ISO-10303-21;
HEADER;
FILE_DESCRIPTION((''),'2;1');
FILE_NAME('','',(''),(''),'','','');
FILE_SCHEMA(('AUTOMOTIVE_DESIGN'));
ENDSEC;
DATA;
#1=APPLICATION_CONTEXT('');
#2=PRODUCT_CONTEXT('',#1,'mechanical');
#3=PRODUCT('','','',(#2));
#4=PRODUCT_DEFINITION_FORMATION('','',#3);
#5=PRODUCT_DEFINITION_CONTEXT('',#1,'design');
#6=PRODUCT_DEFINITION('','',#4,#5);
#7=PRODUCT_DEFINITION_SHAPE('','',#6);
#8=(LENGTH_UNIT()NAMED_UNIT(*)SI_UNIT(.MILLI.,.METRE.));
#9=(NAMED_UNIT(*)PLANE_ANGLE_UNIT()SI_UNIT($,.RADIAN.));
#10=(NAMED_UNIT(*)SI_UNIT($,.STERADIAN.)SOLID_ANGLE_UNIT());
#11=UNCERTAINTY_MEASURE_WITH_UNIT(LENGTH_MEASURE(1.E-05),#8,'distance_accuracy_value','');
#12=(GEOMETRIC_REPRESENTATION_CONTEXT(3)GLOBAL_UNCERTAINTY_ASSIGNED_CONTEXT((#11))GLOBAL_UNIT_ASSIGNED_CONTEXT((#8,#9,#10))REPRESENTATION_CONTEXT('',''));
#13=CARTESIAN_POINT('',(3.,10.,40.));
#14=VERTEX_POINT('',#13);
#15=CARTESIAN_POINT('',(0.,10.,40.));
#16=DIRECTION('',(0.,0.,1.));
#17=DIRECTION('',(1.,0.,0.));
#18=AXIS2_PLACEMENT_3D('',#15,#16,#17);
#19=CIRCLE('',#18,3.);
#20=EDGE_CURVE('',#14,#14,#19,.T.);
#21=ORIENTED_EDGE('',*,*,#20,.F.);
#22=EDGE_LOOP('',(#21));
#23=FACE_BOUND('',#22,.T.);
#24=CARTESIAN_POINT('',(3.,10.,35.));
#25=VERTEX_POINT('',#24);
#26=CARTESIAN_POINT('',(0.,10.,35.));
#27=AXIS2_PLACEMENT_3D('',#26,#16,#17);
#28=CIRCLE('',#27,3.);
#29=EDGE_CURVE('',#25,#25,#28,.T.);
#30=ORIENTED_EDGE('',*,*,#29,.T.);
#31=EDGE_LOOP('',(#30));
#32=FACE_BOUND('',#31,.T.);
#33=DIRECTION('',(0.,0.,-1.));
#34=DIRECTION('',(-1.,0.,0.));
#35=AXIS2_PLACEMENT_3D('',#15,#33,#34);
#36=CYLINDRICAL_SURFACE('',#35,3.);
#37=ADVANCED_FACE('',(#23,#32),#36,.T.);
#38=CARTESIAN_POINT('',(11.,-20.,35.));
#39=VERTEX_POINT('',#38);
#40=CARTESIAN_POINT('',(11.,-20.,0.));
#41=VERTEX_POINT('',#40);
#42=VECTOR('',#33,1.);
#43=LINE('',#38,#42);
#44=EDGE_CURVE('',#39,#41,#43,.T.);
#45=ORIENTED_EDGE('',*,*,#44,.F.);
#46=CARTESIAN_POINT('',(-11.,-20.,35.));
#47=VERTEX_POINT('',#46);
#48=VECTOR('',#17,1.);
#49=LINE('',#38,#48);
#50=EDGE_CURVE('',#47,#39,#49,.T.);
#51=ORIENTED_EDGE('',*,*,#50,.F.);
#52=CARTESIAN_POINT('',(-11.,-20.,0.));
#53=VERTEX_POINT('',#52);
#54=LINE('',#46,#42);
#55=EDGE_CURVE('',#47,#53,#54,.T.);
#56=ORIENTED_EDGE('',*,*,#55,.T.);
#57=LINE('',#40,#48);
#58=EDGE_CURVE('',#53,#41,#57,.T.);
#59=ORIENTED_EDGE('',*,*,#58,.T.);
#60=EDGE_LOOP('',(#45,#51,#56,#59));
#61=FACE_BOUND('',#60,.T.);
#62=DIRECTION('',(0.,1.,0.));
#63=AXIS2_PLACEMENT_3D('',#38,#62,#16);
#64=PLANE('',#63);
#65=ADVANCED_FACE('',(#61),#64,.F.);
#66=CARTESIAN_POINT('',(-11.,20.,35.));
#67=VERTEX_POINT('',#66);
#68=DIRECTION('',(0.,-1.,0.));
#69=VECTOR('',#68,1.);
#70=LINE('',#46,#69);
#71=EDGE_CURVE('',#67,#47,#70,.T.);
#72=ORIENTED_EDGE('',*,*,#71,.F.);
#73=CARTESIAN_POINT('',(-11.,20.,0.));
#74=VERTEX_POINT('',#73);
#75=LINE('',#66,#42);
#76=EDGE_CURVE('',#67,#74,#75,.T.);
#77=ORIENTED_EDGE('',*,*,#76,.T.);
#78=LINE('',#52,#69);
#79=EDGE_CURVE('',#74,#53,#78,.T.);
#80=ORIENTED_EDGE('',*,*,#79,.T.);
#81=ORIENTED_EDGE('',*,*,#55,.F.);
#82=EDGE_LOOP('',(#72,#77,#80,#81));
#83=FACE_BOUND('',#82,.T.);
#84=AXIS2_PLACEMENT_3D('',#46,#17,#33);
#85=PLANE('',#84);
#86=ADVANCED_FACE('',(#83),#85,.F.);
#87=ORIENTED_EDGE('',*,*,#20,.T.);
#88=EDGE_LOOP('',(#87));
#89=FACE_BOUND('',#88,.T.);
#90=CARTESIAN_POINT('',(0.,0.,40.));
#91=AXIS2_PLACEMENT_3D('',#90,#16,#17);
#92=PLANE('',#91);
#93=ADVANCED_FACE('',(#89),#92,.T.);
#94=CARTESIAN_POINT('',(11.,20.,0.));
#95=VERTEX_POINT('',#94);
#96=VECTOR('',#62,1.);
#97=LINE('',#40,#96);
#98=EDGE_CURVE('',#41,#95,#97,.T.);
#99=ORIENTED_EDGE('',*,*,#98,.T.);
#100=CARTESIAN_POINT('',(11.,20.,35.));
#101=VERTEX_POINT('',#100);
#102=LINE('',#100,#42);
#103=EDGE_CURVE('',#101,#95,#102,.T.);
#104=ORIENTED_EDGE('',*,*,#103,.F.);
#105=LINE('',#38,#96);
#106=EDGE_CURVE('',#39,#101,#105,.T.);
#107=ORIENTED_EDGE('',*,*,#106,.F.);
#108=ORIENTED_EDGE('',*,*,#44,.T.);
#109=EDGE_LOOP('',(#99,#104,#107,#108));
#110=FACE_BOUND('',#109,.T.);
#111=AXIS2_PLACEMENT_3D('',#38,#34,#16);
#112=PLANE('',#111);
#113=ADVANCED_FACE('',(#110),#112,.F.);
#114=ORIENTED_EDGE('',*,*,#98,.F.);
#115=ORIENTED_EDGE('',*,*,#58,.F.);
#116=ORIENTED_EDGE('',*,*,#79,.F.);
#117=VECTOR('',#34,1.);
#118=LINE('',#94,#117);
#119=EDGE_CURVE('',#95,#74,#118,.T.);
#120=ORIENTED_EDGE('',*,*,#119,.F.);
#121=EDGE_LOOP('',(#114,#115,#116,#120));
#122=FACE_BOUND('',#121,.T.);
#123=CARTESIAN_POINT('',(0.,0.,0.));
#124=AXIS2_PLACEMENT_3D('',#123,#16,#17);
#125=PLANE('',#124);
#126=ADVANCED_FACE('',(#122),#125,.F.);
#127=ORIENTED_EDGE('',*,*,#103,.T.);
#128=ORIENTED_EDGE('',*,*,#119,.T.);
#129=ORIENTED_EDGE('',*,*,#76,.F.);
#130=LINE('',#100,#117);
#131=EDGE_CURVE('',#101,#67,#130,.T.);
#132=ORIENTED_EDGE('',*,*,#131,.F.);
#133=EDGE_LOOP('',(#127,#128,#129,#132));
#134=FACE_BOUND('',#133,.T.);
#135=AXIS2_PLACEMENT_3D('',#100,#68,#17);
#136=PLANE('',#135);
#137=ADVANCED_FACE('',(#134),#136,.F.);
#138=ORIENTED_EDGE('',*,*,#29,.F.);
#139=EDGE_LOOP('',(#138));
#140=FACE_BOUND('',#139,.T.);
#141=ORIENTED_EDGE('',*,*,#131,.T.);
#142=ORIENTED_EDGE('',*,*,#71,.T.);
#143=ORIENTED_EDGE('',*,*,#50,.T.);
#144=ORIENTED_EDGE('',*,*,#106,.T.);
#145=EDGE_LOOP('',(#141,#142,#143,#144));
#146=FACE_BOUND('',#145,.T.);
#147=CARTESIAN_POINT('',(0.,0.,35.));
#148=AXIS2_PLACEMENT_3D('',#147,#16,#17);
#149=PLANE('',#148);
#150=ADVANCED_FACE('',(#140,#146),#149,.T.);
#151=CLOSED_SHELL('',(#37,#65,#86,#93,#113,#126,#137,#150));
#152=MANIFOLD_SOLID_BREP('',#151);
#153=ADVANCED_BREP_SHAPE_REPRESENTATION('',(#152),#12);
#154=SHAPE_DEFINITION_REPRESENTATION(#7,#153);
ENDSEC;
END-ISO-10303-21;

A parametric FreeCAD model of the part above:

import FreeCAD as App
import Part
import Sketcher

V = App.Vector
Q = App.Units.Quantity

doc = App.newDocument("Part")
body = doc.addObject("PartDesign::Body", "Body")

sketch1 = doc.addObject("Sketcher::SketchObject", "Sketch")
body.addObject(sketch1)
sketch1.AttachmentSupport = (doc.XY_Plane, [""])
sketch1.MapMode = "FlatFace"
sketch1.addGeometry(Part.LineSegment(V(-11, 20, 0), V(-11, -20, 0)), False)
sketch1.addGeometry(Part.LineSegment(V(-11, -20, 0), V(11, -20, 0)), False)
sketch1.addGeometry(Part.LineSegment(V(11, -20, 0), V(11, 20, 0)), False)
sketch1.addGeometry(Part.LineSegment(V(11, 20, 0), V(-11, 20, 0)), False)
sketch1.addGeometry(Part.Circle(V(0, 10, 0), V(0, 0, 1), 3), False)
sketch1.addConstraint(Sketcher.Constraint("Coincident", 0, 2, 1, 1))
sketch1.addConstraint(Sketcher.Constraint("Coincident", 1, 2, 2, 1))
sketch1.addConstraint(Sketcher.Constraint("Coincident", 2, 2, 3, 1))
sketch1.addConstraint(Sketcher.Constraint("Coincident", 3, 2, 0, 1))
sketch1.addConstraint(Sketcher.Constraint("Vertical", 0))
sketch1.addConstraint(Sketcher.Constraint("Horizontal", 1))
sketch1.addConstraint(Sketcher.Constraint("Vertical", 2))
sketch1.addConstraint(Sketcher.Constraint("Horizontal", 3))
sketch1.addConstraint(Sketcher.Constraint("Symmetric", 0, 2, 2, 2, -1, 1))
sketch1.addConstraint(Sketcher.Constraint("PointOnObject", 4, 3, -2))
sketch1.addConstraint(Sketcher.Constraint("Diameter", 4, Q("6 mm")))
sketch1.addConstraint(Sketcher.Constraint("DistanceX", 1, 1, 1, 2, Q("22 mm")))
sketch1.addConstraint(Sketcher.Constraint("DistanceY", 0, 2, 0, 1, Q("40 mm")))
sketch1.addConstraint(Sketcher.Constraint("DistanceY", -1, 1, 4, 3, Q("10 mm")))
pad1 = doc.addObject("PartDesign::Pad", "Pad")
body.addObject(pad1)
pad1.Profile = sketch1
pad1.Length = 35

sketch2 = doc.addObject("Sketcher::SketchObject", "Sketch001")
body.addObject(sketch2)
sketch2.AttachmentSupport = (doc.XY_Plane, [""])
sketch2.MapMode = "FlatFace"
sketch2.addGeometry(Part.Circle(V(0, 10, 0), V(0, 0, 1), 3), False)
sketch2.addConstraint(Sketcher.Constraint("PointOnObject", 0, 3, -2))
sketch2.addConstraint(Sketcher.Constraint("Diameter", 0, Q("6 mm")))
sketch2.addConstraint(Sketcher.Constraint("DistanceY", -1, 1, 0, 3, Q("10 mm")))
pad2 = doc.addObject("PartDesign::Pad", "Pad001")
body.addObject(pad2)
pad2.Profile = sketch2
pad2.Length = 40

doc.recompute()
